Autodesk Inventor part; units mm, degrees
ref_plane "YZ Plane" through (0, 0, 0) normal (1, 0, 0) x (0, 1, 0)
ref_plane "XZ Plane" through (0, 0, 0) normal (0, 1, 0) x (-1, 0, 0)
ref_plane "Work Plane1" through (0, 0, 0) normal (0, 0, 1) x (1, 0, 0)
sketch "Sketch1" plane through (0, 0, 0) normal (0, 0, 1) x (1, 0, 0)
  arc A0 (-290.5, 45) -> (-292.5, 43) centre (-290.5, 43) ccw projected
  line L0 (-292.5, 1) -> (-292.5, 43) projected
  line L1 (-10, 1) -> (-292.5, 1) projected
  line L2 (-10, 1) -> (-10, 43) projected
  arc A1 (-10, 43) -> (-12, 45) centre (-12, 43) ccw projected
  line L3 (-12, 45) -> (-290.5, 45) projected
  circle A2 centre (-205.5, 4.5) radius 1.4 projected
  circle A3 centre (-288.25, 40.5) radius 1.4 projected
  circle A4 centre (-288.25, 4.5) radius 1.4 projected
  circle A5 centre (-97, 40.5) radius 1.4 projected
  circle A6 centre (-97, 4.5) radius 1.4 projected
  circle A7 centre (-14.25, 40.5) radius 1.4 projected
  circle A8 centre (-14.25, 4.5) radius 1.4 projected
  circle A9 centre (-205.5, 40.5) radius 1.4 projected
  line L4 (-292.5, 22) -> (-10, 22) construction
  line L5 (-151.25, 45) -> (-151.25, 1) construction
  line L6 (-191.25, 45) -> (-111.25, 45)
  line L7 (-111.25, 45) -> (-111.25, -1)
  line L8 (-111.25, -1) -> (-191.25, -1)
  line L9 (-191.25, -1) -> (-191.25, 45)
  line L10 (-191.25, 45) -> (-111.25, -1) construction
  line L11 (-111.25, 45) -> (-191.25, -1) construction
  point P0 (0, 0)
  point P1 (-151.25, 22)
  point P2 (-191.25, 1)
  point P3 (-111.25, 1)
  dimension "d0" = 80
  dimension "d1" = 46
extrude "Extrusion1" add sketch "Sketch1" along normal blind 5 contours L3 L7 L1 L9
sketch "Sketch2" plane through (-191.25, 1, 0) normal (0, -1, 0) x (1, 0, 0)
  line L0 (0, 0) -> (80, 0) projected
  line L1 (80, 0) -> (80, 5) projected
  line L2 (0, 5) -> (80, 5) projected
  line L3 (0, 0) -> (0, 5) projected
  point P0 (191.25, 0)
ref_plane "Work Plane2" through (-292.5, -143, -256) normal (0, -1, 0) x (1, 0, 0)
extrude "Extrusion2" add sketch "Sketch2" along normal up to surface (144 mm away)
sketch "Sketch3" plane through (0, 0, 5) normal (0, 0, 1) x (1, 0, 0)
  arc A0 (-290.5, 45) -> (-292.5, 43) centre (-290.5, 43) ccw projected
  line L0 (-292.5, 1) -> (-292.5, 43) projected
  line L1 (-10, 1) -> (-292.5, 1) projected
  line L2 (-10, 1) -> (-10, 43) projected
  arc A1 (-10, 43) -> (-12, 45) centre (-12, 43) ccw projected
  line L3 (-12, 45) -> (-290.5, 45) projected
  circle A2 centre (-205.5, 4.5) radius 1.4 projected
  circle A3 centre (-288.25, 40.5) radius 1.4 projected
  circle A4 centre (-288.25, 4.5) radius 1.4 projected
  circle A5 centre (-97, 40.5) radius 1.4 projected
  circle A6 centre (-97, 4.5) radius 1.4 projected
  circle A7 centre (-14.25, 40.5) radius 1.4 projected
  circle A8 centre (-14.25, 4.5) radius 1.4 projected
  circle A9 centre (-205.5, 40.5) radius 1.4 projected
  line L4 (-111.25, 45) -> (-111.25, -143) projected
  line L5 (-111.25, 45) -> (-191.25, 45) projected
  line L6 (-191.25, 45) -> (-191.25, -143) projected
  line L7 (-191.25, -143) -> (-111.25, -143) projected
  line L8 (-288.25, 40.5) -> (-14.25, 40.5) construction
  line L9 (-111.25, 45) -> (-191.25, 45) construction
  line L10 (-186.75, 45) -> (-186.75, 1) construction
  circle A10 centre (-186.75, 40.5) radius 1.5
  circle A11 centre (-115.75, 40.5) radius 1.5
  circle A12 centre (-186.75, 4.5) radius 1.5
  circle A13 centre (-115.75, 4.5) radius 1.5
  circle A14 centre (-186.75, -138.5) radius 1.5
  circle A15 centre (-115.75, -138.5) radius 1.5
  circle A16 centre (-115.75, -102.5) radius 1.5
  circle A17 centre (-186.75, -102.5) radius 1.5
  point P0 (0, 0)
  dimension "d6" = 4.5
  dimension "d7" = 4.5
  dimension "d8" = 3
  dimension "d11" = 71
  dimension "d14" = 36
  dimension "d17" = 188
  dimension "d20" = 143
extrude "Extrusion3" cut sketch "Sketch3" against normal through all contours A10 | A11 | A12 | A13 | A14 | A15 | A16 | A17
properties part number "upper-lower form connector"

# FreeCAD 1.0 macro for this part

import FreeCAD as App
import Part
import Sketcher

V = App.Vector
Q = App.Units.Quantity

doc = App.newDocument("Part")
body = doc.addObject("PartDesign::Body", "Body")

sketch1 = doc.addObject("Sketcher::SketchObject", "Sketch")
body.addObject(sketch1)
sketch1.AttachmentSupport = (doc.XY_Plane, [""])
sketch1.MapMode = "FlatFace"
sketch1.addGeometry(Part.LineSegment(V(-111, 45, 0), V(-191, 45, 0)), False)
sketch1.addGeometry(Part.LineSegment(V(-191, 45, 0), V(-191, 1, 0)), False)
sketch1.addGeometry(Part.LineSegment(V(-191, 1, 0), V(-111, 1, 0)), False)
sketch1.addGeometry(Part.LineSegment(V(-111, 1, 0), V(-111, 45, 0)), False)
sketch1.addConstraint(Sketcher.Constraint("Coincident", 0, 2, 1, 1))
sketch1.addConstraint(Sketcher.Constraint("Coincident", 1, 2, 2, 1))
sketch1.addConstraint(Sketcher.Constraint("Coincident", 2, 2, 3, 1))
sketch1.addConstraint(Sketcher.Constraint("Coincident", 3, 2, 0, 1))
sketch1.addConstraint(Sketcher.Constraint("Horizontal", 0))
sketch1.addConstraint(Sketcher.Constraint("Vertical", 1))
sketch1.addConstraint(Sketcher.Constraint("Horizontal", 2))
sketch1.addConstraint(Sketcher.Constraint("Vertical", 3))
sketch1.addConstraint(Sketcher.Constraint("DistanceX", 0, 2, 0, 1, Q("80 mm")))
sketch1.addConstraint(Sketcher.Constraint("DistanceY", 1, 2, 1, 1, Q("44 mm")))
sketch1.addConstraint(Sketcher.Constraint("DistanceY", -1, 1, 0, 2, Q("45 mm")))
sketch1.addConstraint(Sketcher.Constraint("DistanceX", 0, 2, -1, 1, Q("191.25 mm")))
pad1 = doc.addObject("PartDesign::Pad", "Pad")
body.addObject(pad1)
pad1.Profile = sketch1
pad1.Length = 5

sketch2 = doc.addObject("Sketcher::SketchObject", "Sketch001")
body.addObject(sketch2)
sketch2.AttachmentSupport = (doc.XZ_Plane, [""])
sketch2.MapMode = "FlatFace"
sketch2.AttachmentOffset = App.Placement(V(0, 0, -1), App.Rotation())
sketch2.addGeometry(Part.LineSegment(V(-191, 5, 0), V(-191, 0, 0)), False)
sketch2.addGeometry(Part.LineSegment(V(-191, 0, 0), V(-111, 0, 0)), False)
sketch2.addGeometry(Part.LineSegment(V(-111, 0, 0), V(-111, 5, 0)), False)
sketch2.addGeometry(Part.LineSegment(V(-111, 5, 0), V(-191, 5, 0)), False)
sketch2.addConstraint(Sketcher.Constraint("Coincident", 0, 2, 1, 1))
sketch2.addConstraint(Sketcher.Constraint("Coincident", 1, 2, 2, 1))
sketch2.addConstraint(Sketcher.Constraint("Coincident", 2, 2, 3, 1))
sketch2.addConstraint(Sketcher.Constraint("Coincident", 3, 2, 0, 1))
sketch2.addConstraint(Sketcher.Constraint("Vertical", 0))
sketch2.addConstraint(Sketcher.Constraint("Horizontal", 1))
sketch2.addConstraint(Sketcher.Constraint("Vertical", 2))
sketch2.addConstraint(Sketcher.Constraint("Horizontal", 3))
sketch2.addConstraint(Sketcher.Constraint("PointOnObject", 0, 2, -1))
sketch2.addConstraint(Sketcher.Constraint("DistanceX", 1, 1, 1, 2, Q("80 mm")))
sketch2.addConstraint(Sketcher.Constraint("DistanceY", 0, 2, 0, 1, Q("5 mm")))
sketch2.addConstraint(Sketcher.Constraint("DistanceX", 0, 2, -1, 1, Q("191.25 mm")))
pad2 = doc.addObject("PartDesign::Pad", "Pad001")
body.addObject(pad2)
pad2.Profile = sketch2
pad2.Length = 144

sketch3 = doc.addObject("Sketcher::SketchObject", "Sketch002")
body.addObject(sketch3)
sketch3.AttachmentSupport = (doc.XY_Plane, [""])
sketch3.MapMode = "FlatFace"
sketch3.AttachmentOffset = App.Placement(V(0, 0, 5), App.Rotation())
sketch3.addGeometry(Part.Circle(V(-186.8, 40.5, 0), V(0, 0, 1), 1.5), False)
sketch3.addGeometry(Part.Circle(V(-115.8, 40.5, 0), V(0, 0, 1), 1.5), False)
sketch3.addGeometry(Part.Circle(V(-186.8, 4.5, 0), V(0, 0, 1), 1.5), False)
sketch3.addGeometry(Part.Circle(V(-115.8, 4.5, 0), V(0, 0, 1), 1.5), False)
sketch3.addGeometry(Part.Circle(V(-186.8, -138.5, 0), V(0, 0, 1), 1.5), False)
sketch3.addGeometry(Part.Circle(V(-115.8, -138.5, 0), V(0, 0, 1), 1.5), False)
sketch3.addGeometry(Part.Circle(V(-115.8, -102.5, 0), V(0, 0, 1), 1.5), False)
sketch3.addGeometry(Part.Circle(V(-186.8, -102.5, 0), V(0, 0, 1), 1.5), False)
sketch3.addConstraint(Sketcher.Constraint("Equal", 0, 1))
sketch3.addConstraint(Sketcher.Constraint("Equal", 1, 2))
sketch3.addConstraint(Sketcher.Constraint("Equal", 2, 3))
sketch3.addConstraint(Sketcher.Constraint("Equal", 3, 4))
sketch3.addConstraint(Sketcher.Constraint("Equal", 4, 5))
sketch3.addConstraint(Sketcher.Constraint("Equal", 5, 6))
sketch3.addConstraint(Sketcher.Constraint("Equal", 6, 7))
sketch3.addConstraint(Sketcher.Constraint("Horizontal", 0, 3, 1, 3))
sketch3.addConstraint(Sketcher.Constraint("Horizontal", 2, 3, 3, 3))
sketch3.addConstraint(Sketcher.Constraint("Horizontal", 4, 3, 5, 3))
sketch3.addConstraint(Sketcher.Constraint("Horizontal", 6, 3, 7, 3))
sketch3.addConstraint(Sketcher.Constraint("Vertical", 0, 3, 2, 3))
sketch3.addConstraint(Sketcher.Constraint("Vertical", 1, 3, 3, 3))
sketch3.addConstraint(Sketcher.Constraint("Vertical", 2, 3, 4, 3))
sketch3.addConstraint(Sketcher.Constraint("Vertical", 3, 3, 5, 3))
sketch3.addConstraint(Sketcher.Constraint("Vertical", 5, 3, 6, 3))
sketch3.addConstraint(Sketcher.Constraint("Vertical", 4, 3, 7, 3))
sketch3.addConstraint(Sketcher.Constraint("Diameter", 0, Q("3 mm")))
sketch3.addConstraint(Sketcher.Constraint("DistanceX", 0, 3, 1, 3, Q("71 mm")))
sketch3.addConstraint(Sketcher.Constraint("DistanceY", 2, 3, 0, 3, Q("36 mm")))
sketch3.addConstraint(Sketcher.Constraint("DistanceY", 4, 3, 2, 3, Q("143 mm")))
sketch3.addConstraint(Sketcher.Constraint("DistanceY", 5, 3, 6, 3, Q("36 mm")))
sketch3.addConstraint(Sketcher.Constraint("DistanceY", -1, 1, 2, 3, Q("4.5 mm")))
sketch3.addConstraint(Sketcher.Constraint("DistanceX", 0, 3, -1, 1, Q("186.75 mm")))
pocket1 = doc.addObject("PartDesign::Pocket", "Pocket")
body.addObject(pocket1)
pocket1.Profile = sketch3
pocket1.Type = "ThroughAll"

doc.recompute()
